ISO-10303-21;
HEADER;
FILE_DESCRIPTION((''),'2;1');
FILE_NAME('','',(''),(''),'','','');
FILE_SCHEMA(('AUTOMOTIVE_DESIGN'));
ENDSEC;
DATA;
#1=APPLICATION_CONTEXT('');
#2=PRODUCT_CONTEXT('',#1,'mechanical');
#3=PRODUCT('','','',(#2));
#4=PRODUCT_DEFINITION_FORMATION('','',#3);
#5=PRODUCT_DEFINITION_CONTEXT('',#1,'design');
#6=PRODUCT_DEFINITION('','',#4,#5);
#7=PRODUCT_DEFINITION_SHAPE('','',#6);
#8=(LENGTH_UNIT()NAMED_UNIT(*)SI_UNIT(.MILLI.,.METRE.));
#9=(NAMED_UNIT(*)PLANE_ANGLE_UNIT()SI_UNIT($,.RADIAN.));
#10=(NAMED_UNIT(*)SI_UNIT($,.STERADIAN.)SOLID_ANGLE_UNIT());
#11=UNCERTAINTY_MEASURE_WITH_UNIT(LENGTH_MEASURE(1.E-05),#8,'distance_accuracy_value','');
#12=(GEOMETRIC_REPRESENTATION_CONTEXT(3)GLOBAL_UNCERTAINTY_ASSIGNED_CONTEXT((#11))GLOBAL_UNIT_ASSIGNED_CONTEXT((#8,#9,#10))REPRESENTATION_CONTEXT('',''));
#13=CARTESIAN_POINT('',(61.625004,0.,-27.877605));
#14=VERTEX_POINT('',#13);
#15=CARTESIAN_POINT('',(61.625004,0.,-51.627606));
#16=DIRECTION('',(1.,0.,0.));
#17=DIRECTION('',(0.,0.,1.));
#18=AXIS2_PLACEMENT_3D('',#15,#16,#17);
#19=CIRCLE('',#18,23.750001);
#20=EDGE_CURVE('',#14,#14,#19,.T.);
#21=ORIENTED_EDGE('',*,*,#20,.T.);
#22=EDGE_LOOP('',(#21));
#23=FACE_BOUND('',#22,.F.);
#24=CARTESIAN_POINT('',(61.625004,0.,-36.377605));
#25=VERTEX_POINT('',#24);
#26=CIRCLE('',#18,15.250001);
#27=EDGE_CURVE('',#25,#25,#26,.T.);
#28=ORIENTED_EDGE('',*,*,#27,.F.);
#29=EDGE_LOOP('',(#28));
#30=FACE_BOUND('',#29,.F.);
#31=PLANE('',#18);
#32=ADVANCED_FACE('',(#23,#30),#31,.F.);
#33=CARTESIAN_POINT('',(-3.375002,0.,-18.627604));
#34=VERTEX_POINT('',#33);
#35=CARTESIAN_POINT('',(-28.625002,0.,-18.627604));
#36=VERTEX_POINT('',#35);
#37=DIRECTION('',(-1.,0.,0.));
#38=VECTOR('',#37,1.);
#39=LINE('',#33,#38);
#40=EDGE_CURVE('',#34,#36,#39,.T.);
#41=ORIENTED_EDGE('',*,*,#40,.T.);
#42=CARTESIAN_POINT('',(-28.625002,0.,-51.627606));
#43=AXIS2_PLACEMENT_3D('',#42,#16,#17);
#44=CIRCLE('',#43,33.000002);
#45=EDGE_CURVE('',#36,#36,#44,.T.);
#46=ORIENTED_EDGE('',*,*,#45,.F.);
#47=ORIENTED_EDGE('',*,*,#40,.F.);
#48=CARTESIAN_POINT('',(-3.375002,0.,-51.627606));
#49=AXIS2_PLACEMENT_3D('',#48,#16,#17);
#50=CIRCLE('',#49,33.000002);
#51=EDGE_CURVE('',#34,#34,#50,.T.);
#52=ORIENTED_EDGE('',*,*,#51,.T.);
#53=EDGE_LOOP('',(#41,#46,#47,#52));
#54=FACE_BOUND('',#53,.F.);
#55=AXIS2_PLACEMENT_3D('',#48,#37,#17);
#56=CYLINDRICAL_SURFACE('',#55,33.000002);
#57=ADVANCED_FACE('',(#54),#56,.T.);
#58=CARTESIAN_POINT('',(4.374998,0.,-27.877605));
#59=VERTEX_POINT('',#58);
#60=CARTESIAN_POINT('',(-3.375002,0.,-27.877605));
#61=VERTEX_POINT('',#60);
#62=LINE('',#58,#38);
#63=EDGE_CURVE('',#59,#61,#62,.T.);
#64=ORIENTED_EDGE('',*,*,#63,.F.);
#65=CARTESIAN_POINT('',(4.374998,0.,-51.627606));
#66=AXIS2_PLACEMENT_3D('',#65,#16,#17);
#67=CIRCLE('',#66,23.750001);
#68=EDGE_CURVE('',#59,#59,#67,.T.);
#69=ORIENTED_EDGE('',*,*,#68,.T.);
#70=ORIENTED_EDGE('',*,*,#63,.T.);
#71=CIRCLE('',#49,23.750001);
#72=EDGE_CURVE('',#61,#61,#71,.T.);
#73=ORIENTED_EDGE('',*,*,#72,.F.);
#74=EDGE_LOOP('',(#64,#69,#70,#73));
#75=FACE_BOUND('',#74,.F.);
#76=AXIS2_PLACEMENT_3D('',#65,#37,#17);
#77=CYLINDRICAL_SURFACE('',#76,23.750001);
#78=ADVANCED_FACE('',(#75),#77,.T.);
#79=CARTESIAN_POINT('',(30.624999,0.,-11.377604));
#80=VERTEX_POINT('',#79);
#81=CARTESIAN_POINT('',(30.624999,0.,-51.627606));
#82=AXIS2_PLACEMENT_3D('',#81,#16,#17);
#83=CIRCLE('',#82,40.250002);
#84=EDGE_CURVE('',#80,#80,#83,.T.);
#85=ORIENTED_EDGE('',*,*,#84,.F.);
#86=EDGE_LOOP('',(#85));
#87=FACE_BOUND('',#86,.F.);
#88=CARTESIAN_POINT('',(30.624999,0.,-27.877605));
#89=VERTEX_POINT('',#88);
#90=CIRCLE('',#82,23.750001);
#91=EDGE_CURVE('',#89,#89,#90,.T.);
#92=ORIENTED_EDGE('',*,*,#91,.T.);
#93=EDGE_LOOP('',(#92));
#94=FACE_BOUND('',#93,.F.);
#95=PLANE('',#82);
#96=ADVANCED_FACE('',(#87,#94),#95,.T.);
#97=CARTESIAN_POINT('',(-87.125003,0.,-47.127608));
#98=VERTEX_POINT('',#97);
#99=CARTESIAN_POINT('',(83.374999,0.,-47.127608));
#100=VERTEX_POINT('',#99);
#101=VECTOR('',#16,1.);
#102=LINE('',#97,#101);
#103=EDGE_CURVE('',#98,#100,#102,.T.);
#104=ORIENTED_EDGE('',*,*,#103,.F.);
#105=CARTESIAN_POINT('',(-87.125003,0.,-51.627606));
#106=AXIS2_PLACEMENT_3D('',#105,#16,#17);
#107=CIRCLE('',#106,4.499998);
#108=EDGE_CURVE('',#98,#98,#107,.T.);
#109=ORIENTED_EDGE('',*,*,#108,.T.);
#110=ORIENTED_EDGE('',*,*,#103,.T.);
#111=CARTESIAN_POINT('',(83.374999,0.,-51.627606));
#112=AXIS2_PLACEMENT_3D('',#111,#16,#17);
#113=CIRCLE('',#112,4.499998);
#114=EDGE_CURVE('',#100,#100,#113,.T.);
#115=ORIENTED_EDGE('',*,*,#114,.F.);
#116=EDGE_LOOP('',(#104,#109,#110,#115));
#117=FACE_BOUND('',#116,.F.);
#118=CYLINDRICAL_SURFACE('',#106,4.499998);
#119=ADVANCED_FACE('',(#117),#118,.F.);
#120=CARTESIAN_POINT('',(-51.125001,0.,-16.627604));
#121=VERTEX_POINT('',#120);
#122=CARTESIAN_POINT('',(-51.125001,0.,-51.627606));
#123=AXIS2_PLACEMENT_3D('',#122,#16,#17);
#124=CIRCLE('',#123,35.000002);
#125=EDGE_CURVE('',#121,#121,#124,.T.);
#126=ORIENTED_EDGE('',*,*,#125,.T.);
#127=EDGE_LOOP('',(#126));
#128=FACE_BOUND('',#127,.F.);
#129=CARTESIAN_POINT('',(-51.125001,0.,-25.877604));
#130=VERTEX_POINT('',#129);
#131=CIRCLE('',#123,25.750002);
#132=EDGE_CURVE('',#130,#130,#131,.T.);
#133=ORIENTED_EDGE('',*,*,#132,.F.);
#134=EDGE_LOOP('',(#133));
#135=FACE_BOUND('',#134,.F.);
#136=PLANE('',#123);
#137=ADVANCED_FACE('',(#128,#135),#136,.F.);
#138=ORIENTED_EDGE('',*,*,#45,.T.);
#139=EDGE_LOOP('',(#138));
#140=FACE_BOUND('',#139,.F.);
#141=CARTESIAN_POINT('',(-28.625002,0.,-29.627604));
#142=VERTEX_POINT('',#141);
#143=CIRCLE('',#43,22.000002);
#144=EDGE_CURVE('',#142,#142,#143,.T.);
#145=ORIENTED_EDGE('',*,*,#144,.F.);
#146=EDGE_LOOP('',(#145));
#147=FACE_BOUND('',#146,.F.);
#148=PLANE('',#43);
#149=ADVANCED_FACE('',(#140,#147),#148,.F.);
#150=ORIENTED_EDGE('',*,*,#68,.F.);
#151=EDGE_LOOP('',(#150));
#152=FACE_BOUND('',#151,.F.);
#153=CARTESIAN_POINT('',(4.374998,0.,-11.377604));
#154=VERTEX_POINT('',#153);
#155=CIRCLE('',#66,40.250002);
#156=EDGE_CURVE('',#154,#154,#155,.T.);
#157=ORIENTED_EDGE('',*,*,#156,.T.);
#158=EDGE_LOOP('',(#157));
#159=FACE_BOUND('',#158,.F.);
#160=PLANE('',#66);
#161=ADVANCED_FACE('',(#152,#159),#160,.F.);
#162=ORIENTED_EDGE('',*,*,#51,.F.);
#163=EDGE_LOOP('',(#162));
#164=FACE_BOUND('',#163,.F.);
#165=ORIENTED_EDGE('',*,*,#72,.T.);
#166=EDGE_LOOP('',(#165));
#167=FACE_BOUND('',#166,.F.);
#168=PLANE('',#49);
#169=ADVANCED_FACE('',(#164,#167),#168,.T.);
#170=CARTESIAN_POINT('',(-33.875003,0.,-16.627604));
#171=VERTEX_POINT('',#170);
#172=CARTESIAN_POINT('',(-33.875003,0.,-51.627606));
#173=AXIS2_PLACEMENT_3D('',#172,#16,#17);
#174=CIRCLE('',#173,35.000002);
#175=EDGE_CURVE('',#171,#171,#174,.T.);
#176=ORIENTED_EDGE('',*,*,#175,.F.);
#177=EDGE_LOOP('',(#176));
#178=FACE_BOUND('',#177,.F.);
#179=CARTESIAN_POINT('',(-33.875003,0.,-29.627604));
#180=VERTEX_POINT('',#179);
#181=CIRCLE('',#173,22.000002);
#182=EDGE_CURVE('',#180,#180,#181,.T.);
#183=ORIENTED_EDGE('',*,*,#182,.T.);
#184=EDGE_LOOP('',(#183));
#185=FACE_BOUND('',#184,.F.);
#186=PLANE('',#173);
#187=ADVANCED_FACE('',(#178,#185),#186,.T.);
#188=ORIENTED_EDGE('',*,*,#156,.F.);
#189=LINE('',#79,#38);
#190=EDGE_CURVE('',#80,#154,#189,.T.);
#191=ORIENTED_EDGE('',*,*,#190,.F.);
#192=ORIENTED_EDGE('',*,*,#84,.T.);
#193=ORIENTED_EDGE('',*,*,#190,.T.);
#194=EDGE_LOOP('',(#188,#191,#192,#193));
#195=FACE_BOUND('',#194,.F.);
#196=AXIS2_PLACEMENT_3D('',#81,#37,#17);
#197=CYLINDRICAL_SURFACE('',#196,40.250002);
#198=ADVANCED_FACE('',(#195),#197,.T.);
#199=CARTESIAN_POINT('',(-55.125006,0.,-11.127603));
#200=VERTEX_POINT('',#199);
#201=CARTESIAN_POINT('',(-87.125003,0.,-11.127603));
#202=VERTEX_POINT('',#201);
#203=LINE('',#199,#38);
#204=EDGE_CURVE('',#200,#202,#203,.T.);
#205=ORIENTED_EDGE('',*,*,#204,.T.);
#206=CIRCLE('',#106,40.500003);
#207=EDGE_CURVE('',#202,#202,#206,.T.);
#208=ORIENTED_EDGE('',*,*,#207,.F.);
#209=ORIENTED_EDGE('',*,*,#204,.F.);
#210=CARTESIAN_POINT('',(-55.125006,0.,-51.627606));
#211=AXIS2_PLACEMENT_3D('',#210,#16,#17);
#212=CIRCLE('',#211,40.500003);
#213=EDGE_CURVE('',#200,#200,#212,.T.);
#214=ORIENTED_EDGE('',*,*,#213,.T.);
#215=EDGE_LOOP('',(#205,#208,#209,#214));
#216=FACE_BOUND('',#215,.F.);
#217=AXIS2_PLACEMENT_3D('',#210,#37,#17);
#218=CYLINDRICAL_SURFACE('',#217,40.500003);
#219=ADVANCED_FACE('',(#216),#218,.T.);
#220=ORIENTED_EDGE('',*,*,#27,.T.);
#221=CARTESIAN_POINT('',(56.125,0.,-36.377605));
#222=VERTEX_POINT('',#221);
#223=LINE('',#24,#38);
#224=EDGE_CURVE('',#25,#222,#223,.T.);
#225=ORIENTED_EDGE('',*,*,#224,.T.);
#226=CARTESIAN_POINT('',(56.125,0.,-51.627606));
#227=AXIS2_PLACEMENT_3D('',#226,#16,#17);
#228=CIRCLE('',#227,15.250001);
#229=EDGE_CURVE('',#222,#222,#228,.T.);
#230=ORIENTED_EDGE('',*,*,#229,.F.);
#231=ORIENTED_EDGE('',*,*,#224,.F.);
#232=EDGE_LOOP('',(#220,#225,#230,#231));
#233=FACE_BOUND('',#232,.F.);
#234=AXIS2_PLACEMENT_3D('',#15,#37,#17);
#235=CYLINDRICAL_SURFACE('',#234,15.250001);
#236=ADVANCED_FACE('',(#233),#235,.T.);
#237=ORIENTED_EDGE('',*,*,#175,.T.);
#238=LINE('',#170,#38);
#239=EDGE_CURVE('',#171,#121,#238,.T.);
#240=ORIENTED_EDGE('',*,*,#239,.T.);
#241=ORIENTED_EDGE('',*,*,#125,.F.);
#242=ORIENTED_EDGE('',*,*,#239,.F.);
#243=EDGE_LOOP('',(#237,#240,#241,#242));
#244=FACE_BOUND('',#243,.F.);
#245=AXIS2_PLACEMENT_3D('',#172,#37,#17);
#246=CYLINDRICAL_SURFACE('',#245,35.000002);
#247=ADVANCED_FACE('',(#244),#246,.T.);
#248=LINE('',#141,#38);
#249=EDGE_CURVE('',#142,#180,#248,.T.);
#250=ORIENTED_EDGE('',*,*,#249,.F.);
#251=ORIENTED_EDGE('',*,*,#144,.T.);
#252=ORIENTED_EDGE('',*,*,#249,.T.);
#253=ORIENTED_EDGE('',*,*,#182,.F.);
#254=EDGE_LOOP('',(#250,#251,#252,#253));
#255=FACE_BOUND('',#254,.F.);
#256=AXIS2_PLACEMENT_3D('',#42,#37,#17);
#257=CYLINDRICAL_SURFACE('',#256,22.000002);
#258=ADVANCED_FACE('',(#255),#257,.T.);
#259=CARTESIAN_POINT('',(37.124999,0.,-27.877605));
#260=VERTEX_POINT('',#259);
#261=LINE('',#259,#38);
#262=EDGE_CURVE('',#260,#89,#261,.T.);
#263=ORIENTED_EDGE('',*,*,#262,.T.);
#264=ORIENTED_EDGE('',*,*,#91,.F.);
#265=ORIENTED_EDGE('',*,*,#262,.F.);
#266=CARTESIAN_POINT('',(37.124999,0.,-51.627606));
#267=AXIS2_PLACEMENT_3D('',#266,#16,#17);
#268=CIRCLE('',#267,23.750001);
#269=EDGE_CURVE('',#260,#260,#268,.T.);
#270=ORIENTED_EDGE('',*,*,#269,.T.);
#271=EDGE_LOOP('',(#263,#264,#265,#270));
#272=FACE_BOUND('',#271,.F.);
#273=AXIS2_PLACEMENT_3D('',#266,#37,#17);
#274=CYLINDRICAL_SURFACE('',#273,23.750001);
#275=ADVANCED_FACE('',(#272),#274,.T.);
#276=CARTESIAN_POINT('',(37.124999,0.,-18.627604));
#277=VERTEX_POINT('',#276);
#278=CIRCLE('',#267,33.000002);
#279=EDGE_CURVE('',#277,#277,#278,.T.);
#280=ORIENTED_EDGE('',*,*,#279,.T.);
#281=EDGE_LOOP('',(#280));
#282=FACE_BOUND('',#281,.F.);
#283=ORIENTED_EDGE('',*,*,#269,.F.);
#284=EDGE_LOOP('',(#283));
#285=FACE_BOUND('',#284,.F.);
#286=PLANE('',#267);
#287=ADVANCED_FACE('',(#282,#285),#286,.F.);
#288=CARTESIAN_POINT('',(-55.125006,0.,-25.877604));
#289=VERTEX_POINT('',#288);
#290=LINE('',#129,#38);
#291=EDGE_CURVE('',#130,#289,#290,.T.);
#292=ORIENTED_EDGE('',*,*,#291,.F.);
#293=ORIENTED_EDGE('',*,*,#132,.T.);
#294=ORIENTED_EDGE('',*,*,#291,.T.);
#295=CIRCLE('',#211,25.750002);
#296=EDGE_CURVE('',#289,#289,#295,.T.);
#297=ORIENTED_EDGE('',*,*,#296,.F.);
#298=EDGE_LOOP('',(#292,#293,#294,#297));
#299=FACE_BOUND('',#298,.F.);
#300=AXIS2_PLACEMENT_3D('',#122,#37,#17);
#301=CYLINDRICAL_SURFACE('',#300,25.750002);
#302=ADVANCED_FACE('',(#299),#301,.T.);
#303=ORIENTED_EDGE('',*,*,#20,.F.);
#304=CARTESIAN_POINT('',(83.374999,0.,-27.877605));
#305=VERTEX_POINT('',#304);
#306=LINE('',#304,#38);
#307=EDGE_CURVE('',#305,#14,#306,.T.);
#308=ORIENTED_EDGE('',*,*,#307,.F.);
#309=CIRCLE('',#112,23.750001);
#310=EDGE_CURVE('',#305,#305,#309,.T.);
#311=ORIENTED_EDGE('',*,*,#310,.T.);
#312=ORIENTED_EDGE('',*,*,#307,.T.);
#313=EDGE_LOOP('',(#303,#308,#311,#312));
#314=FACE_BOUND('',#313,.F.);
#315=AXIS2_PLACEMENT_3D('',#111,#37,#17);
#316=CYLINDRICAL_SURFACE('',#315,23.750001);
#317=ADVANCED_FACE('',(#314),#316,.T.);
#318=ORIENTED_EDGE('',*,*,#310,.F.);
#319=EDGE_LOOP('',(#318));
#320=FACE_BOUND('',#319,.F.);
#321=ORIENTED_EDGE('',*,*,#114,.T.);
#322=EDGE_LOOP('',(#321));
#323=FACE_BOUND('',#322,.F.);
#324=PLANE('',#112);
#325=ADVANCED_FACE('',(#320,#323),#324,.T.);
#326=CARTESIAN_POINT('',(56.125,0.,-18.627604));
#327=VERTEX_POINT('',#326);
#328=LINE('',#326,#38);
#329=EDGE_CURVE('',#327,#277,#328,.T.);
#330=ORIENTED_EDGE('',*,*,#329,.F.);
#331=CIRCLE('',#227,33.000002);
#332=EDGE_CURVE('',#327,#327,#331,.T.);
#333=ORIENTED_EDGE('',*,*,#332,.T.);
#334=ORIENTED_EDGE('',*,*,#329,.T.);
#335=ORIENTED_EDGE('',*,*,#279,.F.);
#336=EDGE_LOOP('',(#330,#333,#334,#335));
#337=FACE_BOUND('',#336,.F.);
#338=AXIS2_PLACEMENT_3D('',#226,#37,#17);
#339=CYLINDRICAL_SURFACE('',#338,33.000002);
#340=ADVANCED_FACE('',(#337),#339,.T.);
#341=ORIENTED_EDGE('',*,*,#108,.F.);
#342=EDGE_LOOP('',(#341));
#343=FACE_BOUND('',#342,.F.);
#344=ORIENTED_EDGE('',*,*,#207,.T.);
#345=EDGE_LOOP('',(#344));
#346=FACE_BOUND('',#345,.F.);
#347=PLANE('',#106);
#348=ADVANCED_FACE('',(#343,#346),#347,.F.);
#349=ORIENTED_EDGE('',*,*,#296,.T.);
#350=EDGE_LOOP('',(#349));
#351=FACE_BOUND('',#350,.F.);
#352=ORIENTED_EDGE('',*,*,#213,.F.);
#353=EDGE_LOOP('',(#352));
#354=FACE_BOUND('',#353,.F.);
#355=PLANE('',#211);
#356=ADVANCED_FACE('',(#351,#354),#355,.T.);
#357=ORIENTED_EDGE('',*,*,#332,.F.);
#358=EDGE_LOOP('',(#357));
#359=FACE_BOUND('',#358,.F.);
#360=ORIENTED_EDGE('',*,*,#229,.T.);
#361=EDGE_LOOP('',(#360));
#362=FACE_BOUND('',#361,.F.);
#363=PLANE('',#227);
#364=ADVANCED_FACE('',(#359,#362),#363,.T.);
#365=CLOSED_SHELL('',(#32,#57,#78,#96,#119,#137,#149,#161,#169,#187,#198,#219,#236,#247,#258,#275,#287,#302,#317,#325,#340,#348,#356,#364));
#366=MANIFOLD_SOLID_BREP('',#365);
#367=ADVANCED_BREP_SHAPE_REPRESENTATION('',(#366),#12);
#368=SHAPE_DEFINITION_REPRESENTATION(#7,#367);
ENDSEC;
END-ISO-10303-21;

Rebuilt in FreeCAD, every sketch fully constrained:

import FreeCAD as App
import Part
import Sketcher


def add_polygon(sketch, points):
    """Adds a closed chain of lines whose ends are joined by coincident constraints."""
    first, n = sketch.GeometryCount, len(points)
    for a, b in zip(points, points[1:] + points[:1]):
        sketch.addGeometry(Part.LineSegment(App.Vector(*a, 0), App.Vector(*b, 0)), False)
    for i in range(n):
        sketch.addConstraint(Sketcher.Constraint("Coincident", first + i, 2, first + (i + 1) % n, 1))

doc = App.newDocument("Part")
body = doc.addObject("PartDesign::Body", "Body")

# Sketch on XZ plane
sketch1 = body.newObject("Sketcher::SketchObject", "Sketch")
sketch1.AttachmentSupport = (doc.getObject("XZ_Plane"), [""])
sketch1.MapMode = "FlatFace"
add_polygon(sketch1, [(-87.1, -11.1), (-87.1, -47.1), (83.4, -47.1), (83.4, -27.9), (61.6, -27.9), (61.6, -36.4), (56.1, -36.4), (56.1, -18.6), (37.1, -18.6), (37.1, -27.9), (30.6, -27.9), (30.6, -11.4), (4.4, -11.4), (4.4, -27.9), (-3.4, -27.9), (-3.4, -18.6), (-28.6, -18.6), (-28.6, -29.6), (-33.9, -29.6), (-33.9, -16.6), (-51.1, -16.6), (-51.1, -25.9), (-55.1, -25.9), (-55.1, -11.1)])  # lines 0-23
sketch1.addGeometry(Part.LineSegment(App.Vector(-87.1, -51.6, 0), App.Vector(83.4, -51.6, 0)), True)  # axis
sketch1.addConstraint(Sketcher.Constraint("Vertical", 0))
sketch1.addConstraint(Sketcher.Constraint("Horizontal", 1))
sketch1.addConstraint(Sketcher.Constraint("Vertical", 2))
sketch1.addConstraint(Sketcher.Constraint("Horizontal", 3))
sketch1.addConstraint(Sketcher.Constraint("Vertical", 4))
sketch1.addConstraint(Sketcher.Constraint("Horizontal", 5))
sketch1.addConstraint(Sketcher.Constraint("Vertical", 6))
sketch1.addConstraint(Sketcher.Constraint("Horizontal", 7))
sketch1.addConstraint(Sketcher.Constraint("Vertical", 8))
sketch1.addConstraint(Sketcher.Constraint("Horizontal", 9))
sketch1.addConstraint(Sketcher.Constraint("Vertical", 10))
sketch1.addConstraint(Sketcher.Constraint("Horizontal", 11))
sketch1.addConstraint(Sketcher.Constraint("Vertical", 12))
sketch1.addConstraint(Sketcher.Constraint("Horizontal", 13))
sketch1.addConstraint(Sketcher.Constraint("Vertical", 14))
sketch1.addConstraint(Sketcher.Constraint("Horizontal", 15))
sketch1.addConstraint(Sketcher.Constraint("Vertical", 16))
sketch1.addConstraint(Sketcher.Constraint("Horizontal", 17))
sketch1.addConstraint(Sketcher.Constraint("Vertical", 18))
sketch1.addConstraint(Sketcher.Constraint("Horizontal", 19))
sketch1.addConstraint(Sketcher.Constraint("Vertical", 20))
sketch1.addConstraint(Sketcher.Constraint("Horizontal", 21))
sketch1.addConstraint(Sketcher.Constraint("Vertical", 22))
sketch1.addConstraint(Sketcher.Constraint("Horizontal", 23))
sketch1.addConstraint(Sketcher.Constraint("Horizontal", 24))
sketch1.addConstraint(Sketcher.Constraint("Horizontal", 3, 2, 8, 2))
sketch1.addConstraint(Sketcher.Constraint("Horizontal", 9, 2, 12, 2))
sketch1.addConstraint(Sketcher.Constraint("Horizontal", 7, 2, 14, 2))
sketch1.addConstraint(Sketcher.Constraint("Vertical", 23, 2, 24, 1))
sketch1.addConstraint(Sketcher.Constraint("Vertical", 2, 2, 24, 2))
sketch1.addConstraint(Sketcher.Constraint("Equal", 14, 20))
sketch1.addConstraint(Sketcher.Constraint("DistanceX", 7, 2, 7, 1, 19.000001))
sketch1.addConstraint(Sketcher.Constraint("DistanceY", 16, 2, 16, 1, 11.0))
sketch1.addConstraint(Sketcher.Constraint("DistanceY", 18, 1, 18, 2, 13.0))
sketch1.addConstraint(Sketcher.Constraint("DistanceX", 1, 1, 1, 2, 170.500002))
sketch1.addConstraint(Sketcher.Constraint("DistanceX", 9, 2, 9, 1, 6.5))
sketch1.addConstraint(Sketcher.Constraint("DistanceY", 4, 2, 4, 1, 8.5))
sketch1.addConstraint(Sketcher.Constraint("DistanceY", 10, 1, 10, 2, 16.500001))
sketch1.addConstraint(Sketcher.Constraint("DistanceX", 13, 2, 9, 2, 34.000001))
sketch1.addConstraint(Sketcher.Constraint("DistanceX", 15, 2, 11, 2, 33.0))
sketch1.addConstraint(Sketcher.Constraint("DistanceY", 24, 1, 19, 2, 35.000002))
sketch1.addConstraint(Sketcher.Constraint("DistanceX", 11, 2, 11, 1, 26.250001))
sketch1.addConstraint(Sketcher.Constraint("DistanceX", 17, 2, 17, 1, 5.250001))
sketch1.addConstraint(Sketcher.Constraint("DistanceY", 6, 1, 6, 2, 17.750001))
sketch1.addConstraint(Sketcher.Constraint("DistanceY", 22, 1, 22, 2, 14.750001))
sketch1.addConstraint(Sketcher.Constraint("DistanceX", 19, 2, 15, 2, 22.499999))
sketch1.addConstraint(Sketcher.Constraint("DistanceX", 5, 2, 2, 2, 27.249999))
sketch1.addConstraint(Sketcher.Constraint("DistanceX", -1, 1, 1, 2, 83.374999))
sketch1.addConstraint(Sketcher.Constraint("DistanceX", 3, 2, 3, 1, 21.749995))
sketch1.addConstraint(Sketcher.Constraint("DistanceX", 21, 2, 21, 1, 4.000005))
sketch1.addConstraint(Sketcher.Constraint("DistanceY", 0, 2, 0, 1, 36.000005))
sketch1.addConstraint(Sketcher.Constraint("DistanceY", 0, 2, -1, 1, 47.127608))
revolution = body.newObject("PartDesign::Revolution", "Revolution")
revolution.Profile = sketch1
revolution.ReferenceAxis = (sketch1, ["Axis0"])
revolution.Angle = 360

doc.recompute()
